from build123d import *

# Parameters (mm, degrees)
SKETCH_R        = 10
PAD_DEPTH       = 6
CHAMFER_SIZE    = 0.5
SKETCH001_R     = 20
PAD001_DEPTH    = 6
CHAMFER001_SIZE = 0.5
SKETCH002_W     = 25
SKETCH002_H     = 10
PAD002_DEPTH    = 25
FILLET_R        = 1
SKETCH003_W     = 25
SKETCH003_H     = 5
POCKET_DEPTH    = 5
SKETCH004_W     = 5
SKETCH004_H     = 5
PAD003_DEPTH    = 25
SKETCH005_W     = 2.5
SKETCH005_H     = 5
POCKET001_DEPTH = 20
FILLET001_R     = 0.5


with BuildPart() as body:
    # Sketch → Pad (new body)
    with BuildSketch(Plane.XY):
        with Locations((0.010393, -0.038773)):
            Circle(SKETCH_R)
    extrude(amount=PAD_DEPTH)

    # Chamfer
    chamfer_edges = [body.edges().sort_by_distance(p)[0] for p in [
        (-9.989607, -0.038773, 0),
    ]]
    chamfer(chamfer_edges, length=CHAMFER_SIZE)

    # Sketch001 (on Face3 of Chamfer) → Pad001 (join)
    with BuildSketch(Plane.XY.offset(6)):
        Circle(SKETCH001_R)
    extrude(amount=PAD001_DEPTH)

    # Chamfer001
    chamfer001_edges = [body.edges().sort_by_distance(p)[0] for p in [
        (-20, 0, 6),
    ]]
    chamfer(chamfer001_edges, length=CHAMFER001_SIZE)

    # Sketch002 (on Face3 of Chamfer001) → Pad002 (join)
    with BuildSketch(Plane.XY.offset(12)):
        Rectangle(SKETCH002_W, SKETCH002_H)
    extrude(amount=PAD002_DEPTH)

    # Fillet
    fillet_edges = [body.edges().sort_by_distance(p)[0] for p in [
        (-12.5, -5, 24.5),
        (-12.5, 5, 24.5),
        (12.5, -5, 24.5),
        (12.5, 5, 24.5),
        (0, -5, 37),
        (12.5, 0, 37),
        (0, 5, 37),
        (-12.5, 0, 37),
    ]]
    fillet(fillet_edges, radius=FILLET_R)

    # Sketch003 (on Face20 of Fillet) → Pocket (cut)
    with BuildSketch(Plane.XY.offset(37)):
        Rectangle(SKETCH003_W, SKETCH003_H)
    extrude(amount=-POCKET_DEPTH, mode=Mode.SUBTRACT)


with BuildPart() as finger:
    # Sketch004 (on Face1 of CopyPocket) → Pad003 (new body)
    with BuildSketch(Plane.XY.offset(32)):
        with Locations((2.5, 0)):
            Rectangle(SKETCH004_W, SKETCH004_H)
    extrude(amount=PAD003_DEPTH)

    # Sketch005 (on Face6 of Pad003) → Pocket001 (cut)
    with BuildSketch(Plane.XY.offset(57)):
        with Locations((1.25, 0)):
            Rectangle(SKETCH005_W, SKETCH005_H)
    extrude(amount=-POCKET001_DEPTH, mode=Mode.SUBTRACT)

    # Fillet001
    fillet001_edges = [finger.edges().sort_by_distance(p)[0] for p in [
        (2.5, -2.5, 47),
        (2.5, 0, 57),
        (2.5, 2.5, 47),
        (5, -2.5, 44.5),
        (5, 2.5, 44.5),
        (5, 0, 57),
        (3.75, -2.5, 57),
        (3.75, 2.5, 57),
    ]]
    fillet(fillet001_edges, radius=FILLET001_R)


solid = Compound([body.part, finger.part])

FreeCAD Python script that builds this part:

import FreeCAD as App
import Part
import Sketcher

V = App.Vector
Q = App.Units.Quantity


def edges_at(feature, points):
    """Names of the edges that pass closest to the given points."""
    edges = feature.Shape.Edges
    near = lambda p: min(range(len(edges)), key=lambda i: edges[i].distToShape(Part.Vertex(*p))[0])
    return sorted({f"Edge{near(p) + 1}" for p in points})


def add_polygon(sketch, points):
    """Adds a closed chain of lines whose ends are joined by coincident constraints."""
    first, n = sketch.GeometryCount, len(points)
    for a, b in zip(points, points[1:] + points[:1]):
        sketch.addGeometry(Part.LineSegment(App.Vector(*a, 0), App.Vector(*b, 0)), False)
    for i in range(n):
        sketch.addConstraint(Sketcher.Constraint("Coincident", first + i, 2, first + (i + 1) % n, 1))

doc = App.newDocument("Part")
body = doc.addObject("PartDesign::Body", "Body")

sketch1 = body.newObject("Sketcher::SketchObject", "Sketch")
sketch1.AttachmentSupport = (doc.getObject("XY_Plane"), [""])
sketch1.MapMode = "FlatFace"
sketch1.addGeometry(Part.Circle(V(0.010393, -0.038773, 0), V(0, 0, 1), 10), False)
sketch1.addConstraint([
    Sketcher.Constraint("Diameter", 0, Q("20 mm")),
    Sketcher.Constraint("DistanceX", -1, 1, 0, 3, Q("0.010393 mm")),
    Sketcher.Constraint("DistanceY", 0, 3, -1, 1, Q("0.038773 mm")),
])
pad1 = body.newObject("PartDesign::Pad", "Pad")
pad1.Profile = sketch1
pad1.Length = 6
doc.recompute()

chamfer = body.newObject("PartDesign::Chamfer", "Chamfer")
chamfer.Base = (pad1, edges_at(pad1, [(-9.99, -0.039, 0)]))
chamfer.Size = 0.5

sketch2 = body.newObject("Sketcher::SketchObject", "Sketch001")
sketch2.AttachmentSupport = (doc.getObject("XY_Plane"), [""])
sketch2.MapMode = "FlatFace"
sketch2.AttachmentOffset = App.Placement(V(0, 0, 6), App.Rotation())
sketch2.addGeometry(Part.Circle(V(0, 0, 0), V(0, 0, 1), 20), False)
sketch2.addConstraint([
    Sketcher.Constraint("Coincident", 0, 3, -1, 1),
    Sketcher.Constraint("Diameter", 0, Q("40 mm")),
])
pad2 = body.newObject("PartDesign::Pad", "Pad001")
pad2.Profile = sketch2
pad2.Length = 6
doc.recompute()

chamfer2 = body.newObject("PartDesign::Chamfer", "Chamfer001")
chamfer2.Base = (pad2, edges_at(pad2, [(-20, 0, 6)]))
chamfer2.Size = 0.5

sketch3 = body.newObject("Sketcher::SketchObject", "Sketch002")
sketch3.AttachmentSupport = (doc.getObject("XY_Plane"), [""])
sketch3.MapMode = "FlatFace"
sketch3.AttachmentOffset = App.Placement(V(0, 0, 12), App.Rotation())
add_polygon(sketch3, [(-12.5, 5), (-12.5, -5), (12.5, -5), (12.5, 5)])
sketch3.addConstraint([
    Sketcher.Constraint("Vertical", 0),
    Sketcher.Constraint("Horizontal", 1),
    Sketcher.Constraint("Vertical", 2),
    Sketcher.Constraint("Horizontal", 3),
    Sketcher.Constraint("Symmetric", 0, 2, 2, 2, -1, 1),
    Sketcher.Constraint("DistanceX", 1, 1, 1, 2, Q("25 mm")),
    Sketcher.Constraint("DistanceY", 0, 2, 0, 1, Q("10 mm")),
])
pad3 = body.newObject("PartDesign::Pad", "Pad002")
pad3.Profile = sketch3
pad3.Length = 25
doc.recompute()

fillet = body.newObject("PartDesign::Fillet", "Fillet")
fillet.Base = (pad3, edges_at(pad3, [
    (-12.5, -5, 24.5),
    (-12.5, 5, 24.5),
    (12.5, -5, 24.5),
    (12.5, 5, 24.5),
    (0, -5, 37),
    (12.5, 0, 37),
    (0, 5, 37),
    (-12.5, 0, 37),
]))
fillet.Radius = 1

sketch4 = body.newObject("Sketcher::SketchObject", "Sketch003")
sketch4.AttachmentSupport = (doc.getObject("XY_Plane"), [""])
sketch4.MapMode = "FlatFace"
sketch4.AttachmentOffset = App.Placement(V(0, 0, 37), App.Rotation())
add_polygon(sketch4, [(-12.5, 2.5), (-12.5, -2.5), (12.5, -2.5), (12.5, 2.5)])
sketch4.addConstraint([
    Sketcher.Constraint("Vertical", 0),
    Sketcher.Constraint("Horizontal", 1),
    Sketcher.Constraint("Vertical", 2),
    Sketcher.Constraint("Horizontal", 3),
    Sketcher.Constraint("Symmetric", 0, 2, 2, 2, -1, 1),
    Sketcher.Constraint("DistanceX", 1, 1, 1, 2, Q("25 mm")),
    Sketcher.Constraint("DistanceY", 0, 2, 0, 1, Q("5 mm")),
])
pocket1 = body.newObject("PartDesign::Pocket", "Pocket")
pocket1.Profile = sketch4
pocket1.Length = 5
body2 = doc.addObject("PartDesign::Body", "Body001")

sketch5 = body2.newObject("Sketcher::SketchObject", "Sketch004")
sketch5.AttachmentSupport = (doc.getObject("XY_Plane001"), [""])
sketch5.MapMode = "FlatFace"
sketch5.AttachmentOffset = App.Placement(V(0, 0, 32), App.Rotation())
add_polygon(sketch5, [(0, 2.5), (0, -2.5), (5, -2.5), (5, 2.5)])
sketch5.addConstraint([
    Sketcher.Constraint("Vertical", 0),
    Sketcher.Constraint("Horizontal", 1),
    Sketcher.Constraint("Vertical", 2),
    Sketcher.Constraint("Horizontal", 3),
    Sketcher.Constraint("Symmetric", 0, 2, 3, 2, -1, 1),
    Sketcher.Constraint("Equal", 3, 0),
    Sketcher.Constraint("DistanceX", 1, 1, 1, 2, Q("5 mm")),
])
pad4 = body2.newObject("PartDesign::Pad", "Pad003")
pad4.Profile = sketch5
pad4.Length = 25

sketch6 = body2.newObject("Sketcher::SketchObject", "Sketch005")
sketch6.AttachmentSupport = (doc.getObject("XY_Plane001"), [""])
sketch6.MapMode = "FlatFace"
sketch6.AttachmentOffset = App.Placement(V(0, 0, 57), App.Rotation())
add_polygon(sketch6, [(0, 2.5), (0, -2.5), (2.5, -2.5), (2.5, 2.5)])
sketch6.addConstraint([
    Sketcher.Constraint("Vertical", 0),
    Sketcher.Constraint("Horizontal", 1),
    Sketcher.Constraint("Vertical", 2),
    Sketcher.Constraint("Horizontal", 3),
    Sketcher.Constraint("Symmetric", 0, 2, 3, 2, -1, 1),
    Sketcher.Constraint("DistanceY", 0, 2, 0, 1, Q("5 mm")),
    Sketcher.Constraint("DistanceX", 1, 1, 1, 2, Q("2.5 mm")),
])
pocket2 = body2.newObject("PartDesign::Pocket", "Pocket001")
pocket2.Profile = sketch6
pocket2.Length = 20
doc.recompute()

fillet2 = body2.newObject("PartDesign::Fillet", "Fillet001")
fillet2.Base = (pocket2, edges_at(pocket2, [
    (2.5, -2.5, 47),
    (2.5, 0, 57),
    (2.5, 2.5, 47),
    (5, -2.5, 44.5),
    (5, 2.5, 44.5),
    (5, 0, 57),
    (3.75, -2.5, 57),
    (3.75, 2.5, 57),
]))
fillet2.Radius = 0.5

doc.recompute()
